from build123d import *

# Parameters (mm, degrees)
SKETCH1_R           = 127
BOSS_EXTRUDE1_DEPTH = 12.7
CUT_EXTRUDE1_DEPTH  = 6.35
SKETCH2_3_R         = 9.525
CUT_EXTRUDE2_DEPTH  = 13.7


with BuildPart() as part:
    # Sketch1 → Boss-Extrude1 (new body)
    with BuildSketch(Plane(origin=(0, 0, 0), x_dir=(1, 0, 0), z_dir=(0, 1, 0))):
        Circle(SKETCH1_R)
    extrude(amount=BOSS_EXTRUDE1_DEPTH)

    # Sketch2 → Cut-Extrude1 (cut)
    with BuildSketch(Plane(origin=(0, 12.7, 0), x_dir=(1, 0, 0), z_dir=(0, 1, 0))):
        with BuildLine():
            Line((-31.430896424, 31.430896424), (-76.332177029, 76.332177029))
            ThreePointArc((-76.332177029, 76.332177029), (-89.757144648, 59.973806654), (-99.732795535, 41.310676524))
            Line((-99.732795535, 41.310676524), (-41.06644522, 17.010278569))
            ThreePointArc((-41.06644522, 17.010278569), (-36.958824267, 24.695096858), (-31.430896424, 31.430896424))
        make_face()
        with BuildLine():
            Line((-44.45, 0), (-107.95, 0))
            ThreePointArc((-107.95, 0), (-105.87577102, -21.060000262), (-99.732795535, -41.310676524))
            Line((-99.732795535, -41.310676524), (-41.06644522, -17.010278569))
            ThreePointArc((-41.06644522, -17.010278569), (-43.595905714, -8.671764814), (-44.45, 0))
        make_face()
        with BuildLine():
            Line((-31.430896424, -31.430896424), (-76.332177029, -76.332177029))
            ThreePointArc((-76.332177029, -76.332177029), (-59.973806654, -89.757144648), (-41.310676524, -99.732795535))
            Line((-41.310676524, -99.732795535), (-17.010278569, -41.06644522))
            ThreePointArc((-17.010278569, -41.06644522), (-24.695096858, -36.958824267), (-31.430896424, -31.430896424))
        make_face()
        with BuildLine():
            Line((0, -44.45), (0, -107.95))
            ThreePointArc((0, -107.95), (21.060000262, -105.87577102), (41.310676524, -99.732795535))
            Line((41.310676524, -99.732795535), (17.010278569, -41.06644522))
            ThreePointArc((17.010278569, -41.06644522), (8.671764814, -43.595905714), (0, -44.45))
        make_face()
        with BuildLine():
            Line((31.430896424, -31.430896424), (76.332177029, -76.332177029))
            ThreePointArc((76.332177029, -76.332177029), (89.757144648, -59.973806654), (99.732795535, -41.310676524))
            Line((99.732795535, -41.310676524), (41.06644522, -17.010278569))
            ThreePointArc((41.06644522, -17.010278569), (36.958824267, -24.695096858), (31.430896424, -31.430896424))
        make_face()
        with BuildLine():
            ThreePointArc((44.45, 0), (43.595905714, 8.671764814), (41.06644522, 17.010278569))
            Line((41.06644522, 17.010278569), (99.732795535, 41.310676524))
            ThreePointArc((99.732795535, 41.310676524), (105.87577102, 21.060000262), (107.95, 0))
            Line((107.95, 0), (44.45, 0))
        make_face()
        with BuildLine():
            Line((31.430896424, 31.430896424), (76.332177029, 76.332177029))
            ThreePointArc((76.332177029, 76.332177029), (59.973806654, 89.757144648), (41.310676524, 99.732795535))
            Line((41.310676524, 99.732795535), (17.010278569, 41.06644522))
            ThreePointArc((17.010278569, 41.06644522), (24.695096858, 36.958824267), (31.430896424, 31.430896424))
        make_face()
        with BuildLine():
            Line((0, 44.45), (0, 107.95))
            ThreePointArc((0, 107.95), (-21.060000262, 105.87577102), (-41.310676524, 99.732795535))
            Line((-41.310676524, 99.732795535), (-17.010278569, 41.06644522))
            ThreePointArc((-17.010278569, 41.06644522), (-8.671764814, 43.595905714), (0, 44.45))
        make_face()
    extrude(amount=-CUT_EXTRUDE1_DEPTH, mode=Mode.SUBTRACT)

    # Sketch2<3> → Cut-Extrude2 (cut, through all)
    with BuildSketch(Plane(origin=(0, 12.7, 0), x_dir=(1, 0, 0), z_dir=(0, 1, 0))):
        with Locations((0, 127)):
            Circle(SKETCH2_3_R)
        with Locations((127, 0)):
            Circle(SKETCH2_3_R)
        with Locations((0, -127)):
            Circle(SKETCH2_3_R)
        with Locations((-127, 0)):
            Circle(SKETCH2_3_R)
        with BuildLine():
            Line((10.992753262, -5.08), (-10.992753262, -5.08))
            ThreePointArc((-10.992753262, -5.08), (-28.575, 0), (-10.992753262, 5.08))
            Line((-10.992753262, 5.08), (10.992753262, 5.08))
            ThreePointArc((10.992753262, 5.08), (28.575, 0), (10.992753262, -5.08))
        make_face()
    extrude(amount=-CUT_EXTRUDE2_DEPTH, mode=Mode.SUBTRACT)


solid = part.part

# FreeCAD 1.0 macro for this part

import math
import FreeCAD as App
import Part
import Sketcher

V = App.Vector
Q = App.Units.Quantity

doc = App.newDocument("Part")
body = doc.addObject("PartDesign::Body", "Body")

# Sketch on XZ plane
sketch1 = body.newObject("Sketcher::SketchObject", "Sketch")
sketch1.AttachmentSupport = (doc.getObject("XZ_Plane"), [""])
sketch1.MapMode = "FlatFace"
sketch1.addGeometry(Part.Circle(V(0, 0, 0), V(0, 0, 1), 127), False)
sketch1.addConstraint(Sketcher.Constraint("Coincident", 0, 3, -1, 1))
sketch1.addConstraint(Sketcher.Constraint("Diameter", 0, Q("10 in")))
pad1 = body.newObject("PartDesign::Pad", "Pad")
pad1.Profile = sketch1
pad1.Length = Q("0.5 in")
pad1.Reversed = True

# Sketch on XZ plane
sketch2 = body.newObject("Sketcher::SketchObject", "Sketch001")
sketch2.AttachmentSupport = (doc.getObject("XZ_Plane"), [""])
sketch2.MapMode = "FlatFace"
sketch2.AttachmentOffset = App.Placement(V(0, 0, -0.5 * 25.4), App.Rotation())
sketch2.addGeometry(Part.LineSegment(V(-31, -31, 0), V(-76, -76, 0)), False)
sketch2.addGeometry(Part.ArcOfCircle(Part.Circle(V(0, 0, 0), V(0, 0, 1), 108), math.radians(-157), math.radians(-135)), False)
sketch2.addGeometry(Part.LineSegment(V(-100, -41, 0), V(-41, -17, 0)), False)
sketch2.addGeometry(Part.ArcOfCircle(Part.Circle(V(0, 0, 0), V(0, 0, 1), 44), math.radians(-158), math.radians(-135)), False)
sketch2.addGeometry(Part.LineSegment(V(-44, 0, 0), V(-108, 0, 0)), False)
sketch2.addGeometry(Part.ArcOfCircle(Part.Circle(V(0, 0, 0), V(0, 0, 1), 108), math.radians(157), math.radians(180)), False)
sketch2.addGeometry(Part.LineSegment(V(-100, 41, 0), V(-41, 17, 0)), False)
sketch2.addGeometry(Part.ArcOfCircle(Part.Circle(V(0, 0, 0), V(0, 0, 1), 44), math.radians(157), math.radians(180)), False)
sketch2.addGeometry(Part.LineSegment(V(-31, 31, 0), V(-76, 76, 0)), False)
sketch2.addGeometry(Part.ArcOfCircle(Part.Circle(V(0, 0, 0), V(0, 0, 1), 108), math.radians(113), math.radians(135)), False)
sketch2.addGeometry(Part.LineSegment(V(-41, 100, 0), V(-17, 41, 0)), False)
sketch2.addGeometry(Part.ArcOfCircle(Part.Circle(V(0, 0, 0), V(0, 0, 1), 44), math.radians(112), math.radians(135)), False)
sketch2.addGeometry(Part.LineSegment(V(0, 44, 0), V(0, 108, 0)), False)
sketch2.addGeometry(Part.ArcOfCircle(Part.Circle(V(0, 0, 0), V(0, 0, 1), 108), math.radians(67), math.radians(90)), False)
sketch2.addGeometry(Part.LineSegment(V(41, 100, 0), V(17, 41, 0)), False)
sketch2.addGeometry(Part.ArcOfCircle(Part.Circle(V(0, 0, 0), V(0, 0, 1), 44), math.radians(67), math.radians(90)), False)
sketch2.addGeometry(Part.LineSegment(V(31, 31, 0), V(76, 76, 0)), False)
sketch2.addGeometry(Part.ArcOfCircle(Part.Circle(V(0, 0, 0), V(0, 0, 1), 108), math.radians(23), math.radians(45)), False)
sketch2.addGeometry(Part.LineSegment(V(100, 41, 0), V(41, 17, 0)), False)
sketch2.addGeometry(Part.ArcOfCircle(Part.Circle(V(0, 0, 0), V(0, 0, 1), 44), math.radians(22), math.radians(45)), False)
sketch2.addGeometry(Part.ArcOfCircle(Part.Circle(V(0, 0, 0), V(0, 0, 1), 44), math.radians(-23), math.radians(0)), False)
sketch2.addGeometry(Part.LineSegment(V(44, 0, 0), V(108, 0, 0)), False)
sketch2.addGeometry(Part.ArcOfCircle(Part.Circle(V(0, 0, 0), V(0, 0, 1), 108), math.radians(-23), math.radians(0)), False)
sketch2.addGeometry(Part.LineSegment(V(100, -41, 0), V(41, -17, 0)), False)
sketch2.addGeometry(Part.LineSegment(V(31, -31, 0), V(76, -76, 0)), False)
sketch2.addGeometry(Part.ArcOfCircle(Part.Circle(V(0, 0, 0), V(0, 0, 1), 108), math.radians(-67), math.radians(-45)), False)
sketch2.addGeometry(Part.LineSegment(V(41, -100, 0), V(17, -41, 0)), False)
sketch2.addGeometry(Part.ArcOfCircle(Part.Circle(V(0, 0, 0), V(0, 0, 1), 44), math.radians(-68), math.radians(-45)), False)
sketch2.addGeometry(Part.LineSegment(V(0, -44, 0), V(0, -108, 0)), False)
sketch2.addGeometry(Part.ArcOfCircle(Part.Circle(V(0, 0, 0), V(0, 0, 1), 108), math.radians(-113), math.radians(-90)), False)
sketch2.addGeometry(Part.LineSegment(V(-41, -100, 0), V(-17, -41, 0)), False)
sketch2.addGeometry(Part.ArcOfCircle(Part.Circle(V(0, 0, 0), V(0, 0, 1), 44), math.radians(-113), math.radians(-90)), False)
sketch2.addConstraint(Sketcher.Constraint("Coincident", 0, 2, 1, 2))
sketch2.addConstraint(Sketcher.Constraint("Coincident", 1, 1, 2, 1))
sketch2.addConstraint(Sketcher.Constraint("Coincident", 2, 2, 3, 1))
sketch2.addConstraint(Sketcher.Constraint("Coincident", 3, 2, 0, 1))
sketch2.addConstraint(Sketcher.Constraint("Coincident", 4, 2, 5, 2))
sketch2.addConstraint(Sketcher.Constraint("Coincident", 5, 1, 6, 1))
sketch2.addConstraint(Sketcher.Constraint("Coincident", 6, 2, 7, 1))
sketch2.addConstraint(Sketcher.Constraint("Coincident", 7, 2, 4, 1))
sketch2.addConstraint(Sketcher.Constraint("Coincident", 8, 2, 9, 2))
sketch2.addConstraint(Sketcher.Constraint("Coincident", 9, 1, 10, 1))
sketch2.addConstraint(Sketcher.Constraint("Coincident", 10, 2, 11, 1))
sketch2.addConstraint(Sketcher.Constraint("Coincident", 11, 2, 8, 1))
sketch2.addConstraint(Sketcher.Constraint("Coincident", 12, 2, 13, 2))
sketch2.addConstraint(Sketcher.Constraint("Coincident", 13, 1, 14, 1))
sketch2.addConstraint(Sketcher.Constraint("Coincident", 14, 2, 15, 1))
sketch2.addConstraint(Sketcher.Constraint("Coincident", 15, 2, 12, 1))
sketch2.addConstraint(Sketcher.Constraint("Coincident", 16, 2, 17, 2))
sketch2.addConstraint(Sketcher.Constraint("Coincident", 17, 1, 18, 1))
sketch2.addConstraint(Sketcher.Constraint("Coincident", 18, 2, 19, 1))
sketch2.addConstraint(Sketcher.Constraint("Coincident", 19, 2, 16, 1))
sketch2.addConstraint(Sketcher.Constraint("Coincident", 20, 2, 21, 1))
sketch2.addConstraint(Sketcher.Constraint("Coincident", 21, 2, 22, 2))
sketch2.addConstraint(Sketcher.Constraint("Coincident", 22, 1, 23, 1))
sketch2.addConstraint(Sketcher.Constraint("Coincident", 23, 2, 20, 1))
sketch2.addConstraint(Sketcher.Constraint("Coincident", 24, 2, 25, 2))
sketch2.addConstraint(Sketcher.Constraint("Coincident", 25, 1, 26, 1))
sketch2.addConstraint(Sketcher.Constraint("Coincident", 26, 2, 27, 1))
sketch2.addConstraint(Sketcher.Constraint("Coincident", 27, 2, 24, 1))
sketch2.addConstraint(Sketcher.Constraint("Coincident", 28, 2, 29, 2))
sketch2.addConstraint(Sketcher.Constraint("Coincident", 29, 1, 30, 1))
sketch2.addConstraint(Sketcher.Constraint("Coincident", 30, 2, 31, 1))
sketch2.addConstraint(Sketcher.Constraint("Coincident", 31, 2, 28, 1))
sketch2.addConstraint(Sketcher.Constraint("Horizontal", 4))
sketch2.addConstraint(Sketcher.Constraint("Vertical", 12))
sketch2.addConstraint(Sketcher.Constraint("Horizontal", 21))
sketch2.addConstraint(Sketcher.Constraint("Vertical", 28))
sketch2.addConstraint(Sketcher.Constraint("Coincident", 1, 3, -1, 1))
sketch2.addConstraint(Sketcher.Constraint("Coincident", 3, 3, -1, 1))
sketch2.addConstraint(Sketcher.Constraint("Coincident", 5, 3, -1, 1))
sketch2.addConstraint(Sketcher.Constraint("Coincident", 7, 3, -1, 1))
sketch2.addConstraint(Sketcher.Constraint("Coincident", 9, 3, -1, 1))
sketch2.addConstraint(Sketcher.Constraint("Coincident", 11, 3, -1, 1))
sketch2.addConstraint(Sketcher.Constraint("Coincident", 13, 3, -1, 1))
sketch2.addConstraint(Sketcher.Constraint("Coincident", 15, 3, -1, 1))
sketch2.addConstraint(Sketcher.Constraint("Coincident", 17, 3, -1, 1))
sketch2.addConstraint(Sketcher.Constraint("Coincident", 19, 3, -1, 1))
sketch2.addConstraint(Sketcher.Constraint("Coincident", 20, 3, -1, 1))
sketch2.addConstraint(Sketcher.Constraint("Coincident", 22, 3, -1, 1))
sketch2.addConstraint(Sketcher.Constraint("Coincident", 25, 3, -1, 1))
sketch2.addConstraint(Sketcher.Constraint("Coincident", 27, 3, -1, 1))
sketch2.addConstraint(Sketcher.Constraint("Coincident", 29, 3, -1, 1))
sketch2.addConstraint(Sketcher.Constraint("Coincident", 31, 3, -1, 1))
sketch2.addConstraint(Sketcher.Constraint("Equal", 1, 5))
sketch2.addConstraint(Sketcher.Constraint("Equal", 3, 7))
sketch2.addConstraint(Sketcher.Constraint("Equal", 5, 9))
sketch2.addConstraint(Sketcher.Constraint("Equal", 7, 11))
sketch2.addConstraint(Sketcher.Constraint("Equal", 9, 13))
sketch2.addConstraint(Sketcher.Constraint("Equal", 11, 15))
sketch2.addConstraint(Sketcher.Constraint("Equal", 13, 17))
sketch2.addConstraint(Sketcher.Constraint("Equal", 15, 19))
sketch2.addConstraint(Sketcher.Constraint("Equal", 19, 20))
sketch2.addConstraint(Sketcher.Constraint("Equal", 17, 22))
sketch2.addConstraint(Sketcher.Constraint("Equal", 22, 25))
sketch2.addConstraint(Sketcher.Constraint("Equal", 20, 27))
sketch2.addConstraint(Sketcher.Constraint("Equal", 25, 29))
sketch2.addConstraint(Sketcher.Constraint("Equal", 27, 31))
sketch2.addConstraint(Sketcher.Constraint("PointOnObject", 4, 2, -1))
sketch2.addConstraint(Sketcher.Constraint("PointOnObject", 12, 2, -2))
sketch2.addConstraint(Sketcher.Constraint("PointOnObject", 20, 2, -1))
sketch2.addConstraint(Sketcher.Constraint("PointOnObject", 28, 2, -2))
sketch2.addConstraint(Sketcher.Constraint("Perpendicular", 0, 8))
sketch2.addConstraint(Sketcher.Constraint("Perpendicular", 2, 10))
sketch2.addConstraint(Sketcher.Constraint("Perpendicular", 6, 14))
sketch2.addConstraint(Sketcher.Constraint("Perpendicular", 8, 16))
sketch2.addConstraint(Sketcher.Constraint("Perpendicular", 10, 18))
sketch2.addConstraint(Sketcher.Constraint("Perpendicular", 14, 23))
sketch2.addConstraint(Sketcher.Constraint("Perpendicular", 16, 24))
sketch2.addConstraint(Sketcher.Constraint("Perpendicular", 18, 26))
sketch2.addConstraint(Sketcher.Constraint("Perpendicular", 23, 30))
sketch2.addConstraint(Sketcher.Constraint("Horizontal", 9, 1, 13, 1))
sketch2.addConstraint(Sketcher.Constraint("Horizontal", 10, 2, 14, 2))
sketch2.addConstraint(Sketcher.Constraint("Horizontal", 8, 2, 16, 2))
sketch2.addConstraint(Sketcher.Constraint("Horizontal", 5, 1, 17, 1))
sketch2.addConstraint(Sketcher.Constraint("Horizontal", 11, 2, 19, 2))
sketch2.addConstraint(Sketcher.Constraint("Horizontal", 1, 1, 22, 1))
sketch2.addConstraint(Sketcher.Constraint("Horizontal", 0, 2, 24, 2))
sketch2.addConstraint(Sketcher.Constraint("Horizontal", 25, 1, 29, 1))
sketch2.addConstraint(Sketcher.Constraint("Vertical", 1, 1, 5, 1))
sketch2.addConstraint(Sketcher.Constraint("Vertical", 0, 2, 8, 2))
sketch2.addConstraint(Sketcher.Constraint("Vertical", 13, 1, 25, 1))
sketch2.addConstraint(Sketcher.Constraint("Radius", 1, Q("4.25 in")))
sketch2.addConstraint(Sketcher.Constraint("Radius", 3, Q("1.75 in")))
sketch2.addConstraint(Sketcher.Constraint("Angle", 2, Q("22.5 deg")))
sketch2.addConstraint(Sketcher.Constraint("DistanceY", 2, 2, 8, 2, Q("3.6748998 in")))
sketch2.addConstraint(Sketcher.Constraint("DistanceX", 10, 2, 16, 2, Q("3.6748998 in")))
sketch2.addConstraint(Sketcher.Constraint("DistanceY", 0, 2, 1, 1, Q("35.021501 mm")))
pocket1 = body.newObject("PartDesign::Pocket", "Pocket")
pocket1.Profile = sketch2
pocket1.Length = Q("0.25 in")
pocket1.Reversed = True

# Sketch on XZ plane
sketch3 = body.newObject("Sketcher::SketchObject", "Sketch002")
sketch3.AttachmentSupport = (doc.getObject("XZ_Plane"), [""])
sketch3.MapMode = "FlatFace"
sketch3.AttachmentOffset = App.Placement(V(0, 0, -0.5 * 25.4), App.Rotation())
sketch3.addGeometry(Part.Circle(V(0, -127, 0), V(0, 0, 1), 10), False)
sketch3.addGeometry(Part.Circle(V(127, 0, 0), V(0, 0, 1), 10), False)
sketch3.addGeometry(Part.Circle(V(0, 127, 0), V(0, 0, 1), 10), False)
sketch3.addGeometry(Part.Circle(V(-127, 0, 0), V(0, 0, 1), 10), False)
sketch3.addGeometry(Part.LineSegment(V(-11, 5, 0), V(11, 5, 0)), False)
sketch3.addGeometry(Part.ArcOfCircle(Part.Circle(V(19, 0, 0), V(0, 0, 1), 10), math.radians(-148), math.radians(148)), False)
sketch3.addGeometry(Part.LineSegment(V(11, -5, 0), V(-11, -5, 0)), False)
sketch3.addGeometry(Part.ArcOfCircle(Part.Circle(V(-19, 0, 0), V(0, 0, 1), 10), math.radians(32), math.radians(328)), False)
sketch3.addConstraint(Sketcher.Constraint("Coincident", 4, 2, 5, 2))
sketch3.addConstraint(Sketcher.Constraint("Coincident", 5, 1, 6, 1))
sketch3.addConstraint(Sketcher.Constraint("Coincident", 6, 2, 7, 2))
sketch3.addConstraint(Sketcher.Constraint("Coincident", 7, 1, 4, 1))
sketch3.addConstraint(Sketcher.Constraint("Horizontal", 4))
sketch3.addConstraint(Sketcher.Constraint("Horizontal", 6))
sketch3.addConstraint(Sketcher.Constraint("Equal", 0, 1))
sketch3.addConstraint(Sketcher.Constraint("Equal", 1, 2))
sketch3.addConstraint(Sketcher.Constraint("Equal", 2, 3))
sketch3.addConstraint(Sketcher.Constraint("Equal", 3, 5))
sketch3.addConstraint(Sketcher.Constraint("Equal", 5, 7))
sketch3.addConstraint(Sketcher.Constraint("Symmetric", 0, 3, 2, 3, -1, 1))
sketch3.addConstraint(Sketcher.Constraint("Symmetric", 1, 3, 3, 3, -1, 1))
sketch3.addConstraint(Sketcher.Constraint("Symmetric", 5, 3, 7, 3, -1, 1))
sketch3.addConstraint(Sketcher.Constraint("Symmetric", 4, 2, 5, 1, -1))
sketch3.addConstraint(Sketcher.Constraint("PointOnObject", 0, 3, -2))
sketch3.addConstraint(Sketcher.Constraint("PointOnObject", 1, 3, -1))
sketch3.addConstraint(Sketcher.Constraint("Diameter", 0, Q("0.75 in")))
sketch3.addConstraint(Sketcher.Constraint("DistanceY", 0, 3, -1, 1, Q("5 in")))
sketch3.addConstraint(Sketcher.Constraint("DistanceX", -1, 1, 1, 3, Q("5 in")))
sketch3.addConstraint(Sketcher.Constraint("DistanceY", -1, 1, 4, 2, Q("0.2 in")))
sketch3.addConstraint(Sketcher.Constraint("DistanceX", 7, 3, 5, 3, Q("1.5 in")))
pocket2 = body.newObject("PartDesign::Pocket", "Pocket001")
pocket2.Profile = sketch3
pocket2.Type = "ThroughAll"
pocket2.Reversed = True

doc.recompute()
